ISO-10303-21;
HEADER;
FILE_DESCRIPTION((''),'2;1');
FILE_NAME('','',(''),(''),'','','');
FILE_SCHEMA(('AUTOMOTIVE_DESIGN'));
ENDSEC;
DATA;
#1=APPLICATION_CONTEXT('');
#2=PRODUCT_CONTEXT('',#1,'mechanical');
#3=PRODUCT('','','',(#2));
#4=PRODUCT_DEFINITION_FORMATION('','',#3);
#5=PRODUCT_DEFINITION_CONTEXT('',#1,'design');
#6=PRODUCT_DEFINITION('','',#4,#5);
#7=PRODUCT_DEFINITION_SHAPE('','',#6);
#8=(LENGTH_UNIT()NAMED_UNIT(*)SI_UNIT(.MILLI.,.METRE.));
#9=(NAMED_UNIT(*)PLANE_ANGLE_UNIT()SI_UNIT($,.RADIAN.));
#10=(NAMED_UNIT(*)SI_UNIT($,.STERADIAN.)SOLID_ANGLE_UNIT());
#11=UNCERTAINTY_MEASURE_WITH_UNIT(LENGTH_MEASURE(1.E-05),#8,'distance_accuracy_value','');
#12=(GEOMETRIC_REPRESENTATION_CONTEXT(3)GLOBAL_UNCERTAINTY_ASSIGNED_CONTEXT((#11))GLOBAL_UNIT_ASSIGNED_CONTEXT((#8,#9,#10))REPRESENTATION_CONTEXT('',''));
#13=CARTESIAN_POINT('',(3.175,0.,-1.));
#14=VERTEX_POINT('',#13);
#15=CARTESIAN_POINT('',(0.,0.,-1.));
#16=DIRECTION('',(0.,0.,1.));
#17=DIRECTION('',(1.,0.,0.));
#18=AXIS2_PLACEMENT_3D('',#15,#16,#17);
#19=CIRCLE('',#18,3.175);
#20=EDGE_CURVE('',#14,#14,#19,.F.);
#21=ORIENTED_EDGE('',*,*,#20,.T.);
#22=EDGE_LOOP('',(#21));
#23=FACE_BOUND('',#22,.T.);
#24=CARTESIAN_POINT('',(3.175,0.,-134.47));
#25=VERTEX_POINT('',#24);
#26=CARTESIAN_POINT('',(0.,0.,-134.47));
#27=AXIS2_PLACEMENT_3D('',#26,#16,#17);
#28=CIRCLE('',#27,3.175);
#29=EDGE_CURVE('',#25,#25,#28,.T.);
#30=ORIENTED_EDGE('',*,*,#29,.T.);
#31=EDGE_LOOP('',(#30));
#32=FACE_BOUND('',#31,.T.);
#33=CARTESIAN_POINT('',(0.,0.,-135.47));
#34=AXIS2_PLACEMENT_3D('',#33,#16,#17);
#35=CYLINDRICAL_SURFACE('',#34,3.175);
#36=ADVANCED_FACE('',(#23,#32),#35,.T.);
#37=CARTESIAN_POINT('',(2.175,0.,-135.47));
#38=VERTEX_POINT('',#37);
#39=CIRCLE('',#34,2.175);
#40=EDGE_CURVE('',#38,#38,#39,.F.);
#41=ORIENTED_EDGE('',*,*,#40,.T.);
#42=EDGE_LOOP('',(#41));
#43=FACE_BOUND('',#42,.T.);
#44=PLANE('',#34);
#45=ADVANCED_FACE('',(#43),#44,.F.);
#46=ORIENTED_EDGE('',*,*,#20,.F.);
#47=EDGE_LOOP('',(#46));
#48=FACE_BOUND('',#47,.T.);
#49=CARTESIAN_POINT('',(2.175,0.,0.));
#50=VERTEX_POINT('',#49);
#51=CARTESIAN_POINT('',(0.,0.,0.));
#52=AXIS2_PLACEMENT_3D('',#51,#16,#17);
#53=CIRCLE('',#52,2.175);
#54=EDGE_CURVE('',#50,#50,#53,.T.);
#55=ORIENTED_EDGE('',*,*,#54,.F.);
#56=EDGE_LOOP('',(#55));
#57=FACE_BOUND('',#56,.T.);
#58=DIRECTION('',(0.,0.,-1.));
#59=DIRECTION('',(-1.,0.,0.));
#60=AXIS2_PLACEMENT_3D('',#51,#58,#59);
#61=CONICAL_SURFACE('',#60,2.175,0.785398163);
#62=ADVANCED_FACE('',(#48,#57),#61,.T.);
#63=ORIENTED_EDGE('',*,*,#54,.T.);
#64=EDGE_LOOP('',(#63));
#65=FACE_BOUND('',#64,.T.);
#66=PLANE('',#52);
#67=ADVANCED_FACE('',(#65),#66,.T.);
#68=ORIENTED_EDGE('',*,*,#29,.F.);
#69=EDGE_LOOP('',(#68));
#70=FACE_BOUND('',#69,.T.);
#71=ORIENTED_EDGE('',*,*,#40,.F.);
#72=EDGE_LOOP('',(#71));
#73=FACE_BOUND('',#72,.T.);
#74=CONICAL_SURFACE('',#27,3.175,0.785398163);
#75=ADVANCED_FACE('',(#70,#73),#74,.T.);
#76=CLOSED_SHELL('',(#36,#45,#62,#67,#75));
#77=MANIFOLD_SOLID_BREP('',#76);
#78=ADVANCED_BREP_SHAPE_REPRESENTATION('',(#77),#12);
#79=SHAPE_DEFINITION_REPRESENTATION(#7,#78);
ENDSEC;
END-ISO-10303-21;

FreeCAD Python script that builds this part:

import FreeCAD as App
import Part
import Sketcher
from FreeCAD import Vector


def edges_at(feature, points):
    """Names of the edges that pass closest to the given points."""
    edges = feature.Shape.Edges
    near = lambda p: min(range(len(edges)), key=lambda i: edges[i].distToShape(Part.Vertex(*p))[0])
    return sorted({f"Edge{near(p) + 1}" for p in points})

doc = App.newDocument("Part")
body = doc.addObject("PartDesign::Body", "Body")

sketch1 = body.newObject("Sketcher::SketchObject", "Sketch")
sketch1.AttachmentSupport = (doc.getObject("XY_Plane"), [""])
sketch1.MapMode = "FlatFace"
sketch1.addGeometry(Part.Circle(Vector(0, 0, 0), Vector(0, 0, 1), 3.2), False)
sketch1.addConstraint([
    Sketcher.Constraint("Coincident", 0, 3, -1, 1),
    Sketcher.Constraint("Diameter", 0, 6.35),
])
pad1 = body.newObject("PartDesign::Pad", "Pad")
pad1.Profile = sketch1
pad1.Length = 135.47
pad1.Reversed = True
doc.recompute()

chamfer = body.newObject("PartDesign::Chamfer", "Chamfer")
chamfer.Base = (pad1, edges_at(pad1, [(-3.175, 0, 0), (-3.175, 0, -135.47)]))
chamfer.Size = 1

doc.recompute()
